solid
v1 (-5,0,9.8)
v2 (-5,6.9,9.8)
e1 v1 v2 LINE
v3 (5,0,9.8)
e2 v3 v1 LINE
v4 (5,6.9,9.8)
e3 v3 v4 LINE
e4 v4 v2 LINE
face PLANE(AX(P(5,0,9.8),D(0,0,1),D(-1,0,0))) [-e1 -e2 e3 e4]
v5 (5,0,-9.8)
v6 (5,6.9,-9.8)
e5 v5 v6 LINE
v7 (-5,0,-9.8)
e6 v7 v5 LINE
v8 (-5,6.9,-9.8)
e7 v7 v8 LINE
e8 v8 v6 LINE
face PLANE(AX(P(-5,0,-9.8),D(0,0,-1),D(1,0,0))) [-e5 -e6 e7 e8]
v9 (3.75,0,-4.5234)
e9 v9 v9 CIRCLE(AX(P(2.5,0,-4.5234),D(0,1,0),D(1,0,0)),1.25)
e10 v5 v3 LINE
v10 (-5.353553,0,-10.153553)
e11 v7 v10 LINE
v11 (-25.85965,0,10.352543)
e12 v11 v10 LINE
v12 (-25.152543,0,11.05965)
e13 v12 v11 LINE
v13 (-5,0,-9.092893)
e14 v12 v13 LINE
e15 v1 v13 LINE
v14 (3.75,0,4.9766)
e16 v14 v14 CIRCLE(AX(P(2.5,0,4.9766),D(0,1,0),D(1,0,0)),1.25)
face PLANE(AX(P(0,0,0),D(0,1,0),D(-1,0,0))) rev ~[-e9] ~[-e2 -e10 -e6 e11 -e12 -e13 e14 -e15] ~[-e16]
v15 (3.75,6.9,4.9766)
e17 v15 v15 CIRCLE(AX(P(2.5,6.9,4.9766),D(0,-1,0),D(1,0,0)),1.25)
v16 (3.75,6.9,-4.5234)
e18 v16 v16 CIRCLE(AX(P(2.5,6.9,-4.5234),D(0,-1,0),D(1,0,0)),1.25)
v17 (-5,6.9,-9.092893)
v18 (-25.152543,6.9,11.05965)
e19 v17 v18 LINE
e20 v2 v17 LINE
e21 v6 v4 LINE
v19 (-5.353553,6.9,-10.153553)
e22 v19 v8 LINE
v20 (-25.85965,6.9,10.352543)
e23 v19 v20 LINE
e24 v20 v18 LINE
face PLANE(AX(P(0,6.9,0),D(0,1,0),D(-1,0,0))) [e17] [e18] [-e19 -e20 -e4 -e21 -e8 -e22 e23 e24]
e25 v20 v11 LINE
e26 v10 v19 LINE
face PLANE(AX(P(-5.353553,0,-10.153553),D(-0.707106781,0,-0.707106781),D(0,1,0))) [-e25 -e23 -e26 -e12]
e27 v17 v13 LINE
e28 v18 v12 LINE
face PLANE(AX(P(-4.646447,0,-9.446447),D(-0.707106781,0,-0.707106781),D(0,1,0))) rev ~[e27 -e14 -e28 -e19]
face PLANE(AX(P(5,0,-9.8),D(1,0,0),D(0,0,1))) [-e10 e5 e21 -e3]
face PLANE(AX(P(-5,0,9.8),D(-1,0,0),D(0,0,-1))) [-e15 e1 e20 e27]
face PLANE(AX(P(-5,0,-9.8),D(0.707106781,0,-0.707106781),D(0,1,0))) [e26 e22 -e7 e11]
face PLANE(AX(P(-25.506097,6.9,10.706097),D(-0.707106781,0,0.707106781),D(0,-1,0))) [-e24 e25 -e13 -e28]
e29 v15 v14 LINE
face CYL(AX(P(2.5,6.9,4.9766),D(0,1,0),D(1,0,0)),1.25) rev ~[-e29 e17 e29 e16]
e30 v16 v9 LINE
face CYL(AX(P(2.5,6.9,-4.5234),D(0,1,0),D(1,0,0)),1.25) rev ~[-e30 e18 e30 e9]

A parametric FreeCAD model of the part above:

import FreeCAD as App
import Part
import Sketcher
from FreeCAD import Vector


def add_polygon(sketch, points):
    """Adds a closed chain of lines whose ends are joined by coincident constraints."""
    first, n = sketch.GeometryCount, len(points)
    for a, b in zip(points, points[1:] + points[:1]):
        sketch.addGeometry(Part.LineSegment(App.Vector(*a, 0), App.Vector(*b, 0)), False)
    for i in range(n):
        sketch.addConstraint(Sketcher.Constraint("Coincident", first + i, 2, first + (i + 1) % n, 1))

doc = App.newDocument("Part")
body = doc.addObject("PartDesign::Body", "Body")

sketch1 = body.newObject("Sketcher::SketchObject", "Sketch")
sketch1.AttachmentSupport = (doc.getObject("XZ_Plane"), [""])
sketch1.MapMode = "FlatFace"
add_polygon(sketch1, [(5, -10), (-5, -10), (-5, 10), (5, 10)])
sketch1.addConstraint([
    Sketcher.Constraint("Horizontal", 0),
    Sketcher.Constraint("Vertical", 1),
    Sketcher.Constraint("Horizontal", 2),
    Sketcher.Constraint("Vertical", 3),
    Sketcher.Constraint("Symmetric", 0, 2, 2, 2, -1, 1),
    Sketcher.Constraint("DistanceX", 0, 2, 0, 1, 10.0),
    Sketcher.Constraint("DistanceY", 1, 1, 1, 2, 19.6),
])
pad1 = body.newObject("PartDesign::Pad", "Pad")
pad1.Profile = sketch1
pad1.Length = 6.9
pad1.Reversed = True

sketch2 = body.newObject("Sketcher::SketchObject", "Sketch001")
sketch2.AttachmentSupport = (doc.getObject("XZ_Plane"), [""])
sketch2.MapMode = "FlatFace"
sketch2.AttachmentOffset = App.Placement(Vector(0, 0, -6.9), App.Rotation())
sketch2.addGeometry([
    Part.Circle(Vector(2.5, 5, 0), Vector(0, 0, 1), 1.2),
    Part.Circle(Vector(2.5, -4.5, 0), Vector(0, 0, 1), 1.2),
], False)
sketch2.addConstraint([
    Sketcher.Constraint("Equal", 0, 1),
    Sketcher.Constraint("Vertical", 0, 3, 1, 3),
    Sketcher.Constraint("Diameter", 0, 2.5),
    Sketcher.Constraint("DistanceX", -1, 1, 0, 3, 2.5),
    Sketcher.Constraint("DistanceY", 1, 3, 0, 3, 9.5),
    Sketcher.Constraint("DistanceY", -1, 1, 0, 3, 4.9766),
])
pocket1 = body.newObject("PartDesign::Pocket", "Pocket")
pocket1.Profile = sketch2
pocket1.Length = 6.9
pocket1.Reversed = True

sketch3 = body.newObject("Sketcher::SketchObject", "Sketch002")
sketch3.Placement = App.Placement(Vector(-5, 0, -9.8), App.Rotation(Vector(0, 1, 0), Vector(0.707106781, 0, -0.707106781), Vector(-0.707106781, 0, -0.707106781), "ZXY"))
add_polygon(sketch3, [(7, 0), (0, 0), (0, -29), (7, -29)])
sketch3.addConstraint([
    Sketcher.Constraint("Horizontal", 0),
    Sketcher.Constraint("Vertical", 1),
    Sketcher.Constraint("Horizontal", 2),
    Sketcher.Constraint("Vertical", 3),
    Sketcher.Constraint("Coincident", 0, 2, -1, 1),
    Sketcher.Constraint("DistanceY", 1, 2, 1, 1, 29.0),
    Sketcher.Constraint("DistanceX", 0, 2, 0, 1, 6.9),
])
pad2 = body.newObject("PartDesign::Pad", "Pad001")
pad2.Profile = sketch3
pad2.Length = 1
pad2.Midplane = True

doc.recompute()
